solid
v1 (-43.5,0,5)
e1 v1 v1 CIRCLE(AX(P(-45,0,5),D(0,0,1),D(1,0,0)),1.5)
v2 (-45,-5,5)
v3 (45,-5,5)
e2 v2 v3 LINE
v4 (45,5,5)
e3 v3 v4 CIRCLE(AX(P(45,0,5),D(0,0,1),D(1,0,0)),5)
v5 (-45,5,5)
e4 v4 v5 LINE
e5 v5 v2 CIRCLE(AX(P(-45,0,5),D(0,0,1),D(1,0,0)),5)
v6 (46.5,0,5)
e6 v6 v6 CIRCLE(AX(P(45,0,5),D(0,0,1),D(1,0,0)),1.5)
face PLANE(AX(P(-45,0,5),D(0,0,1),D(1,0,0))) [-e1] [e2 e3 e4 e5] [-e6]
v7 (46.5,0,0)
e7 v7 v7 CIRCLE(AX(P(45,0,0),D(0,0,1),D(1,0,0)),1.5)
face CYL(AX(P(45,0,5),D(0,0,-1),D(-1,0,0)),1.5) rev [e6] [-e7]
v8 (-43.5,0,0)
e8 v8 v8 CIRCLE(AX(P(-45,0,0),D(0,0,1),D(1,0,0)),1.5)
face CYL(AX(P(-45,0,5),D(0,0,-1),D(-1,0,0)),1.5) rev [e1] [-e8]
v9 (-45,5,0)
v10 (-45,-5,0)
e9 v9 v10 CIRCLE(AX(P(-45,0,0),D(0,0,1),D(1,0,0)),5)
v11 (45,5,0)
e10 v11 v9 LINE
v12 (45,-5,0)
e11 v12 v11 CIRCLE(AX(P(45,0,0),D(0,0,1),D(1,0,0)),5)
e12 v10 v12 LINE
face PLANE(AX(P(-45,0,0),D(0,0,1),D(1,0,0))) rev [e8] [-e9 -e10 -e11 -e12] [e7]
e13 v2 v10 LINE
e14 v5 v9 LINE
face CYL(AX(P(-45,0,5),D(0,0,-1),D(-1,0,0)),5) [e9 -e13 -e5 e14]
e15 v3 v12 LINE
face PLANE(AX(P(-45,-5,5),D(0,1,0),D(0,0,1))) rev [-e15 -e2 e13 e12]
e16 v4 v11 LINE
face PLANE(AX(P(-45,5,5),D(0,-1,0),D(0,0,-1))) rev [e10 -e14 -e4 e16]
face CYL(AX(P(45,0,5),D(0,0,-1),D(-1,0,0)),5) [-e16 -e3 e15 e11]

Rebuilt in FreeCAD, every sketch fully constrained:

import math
import FreeCAD as App
import Part
import Sketcher

V = App.Vector
Q = App.Units.Quantity

doc = App.newDocument("Part")
body = doc.addObject("PartDesign::Body", "Body")

# Sketch on XY plane
sketch1 = body.newObject("Sketcher::SketchObject", "Sketch")
sketch1.AttachmentSupport = (doc.getObject("XY_Plane"), [""])
sketch1.MapMode = "FlatFace"
sketch1.addGeometry([
    Part.LineSegment(V(45, 5, 0), V(-45, 5, 0)),  # 0
    Part.ArcOfCircle(Part.Circle(V(-45, 0, 0), V(0, 0, 1), 5), math.radians(90), math.radians(270)),  # 1
    Part.LineSegment(V(-45, -5, 0), V(45, -5, 0)),  # 2
    Part.ArcOfCircle(Part.Circle(V(45, 0, 0), V(0, 0, 1), 5), math.radians(-90), math.radians(90)),  # 3
    Part.Circle(V(45, 0, 0), V(0, 0, 1), 1.5),  # 4
    Part.Circle(V(-45, 0, 0), V(0, 0, 1), 1.5),  # 5
], False)
sketch1.addConstraint([
    Sketcher.Constraint("Tangent", 0, 2, 1, 1),
    Sketcher.Constraint("Tangent", 1, 2, 2, 1),
    Sketcher.Constraint("Tangent", 2, 2, 3, 1),
    Sketcher.Constraint("Tangent", 3, 2, 0, 1),
    Sketcher.Constraint("Horizontal", 0),
    Sketcher.Constraint("Horizontal", 2),
    Sketcher.Constraint("Coincident", 4, 3, 3, 3),
    Sketcher.Constraint("Coincident", 5, 3, 1, 3),
    Sketcher.Constraint("Equal", 4, 5),
    Sketcher.Constraint("Symmetric", 1, 3, 3, 3, -1, 1),
    Sketcher.Constraint("Diameter", 4, Q("3 mm")),
    Sketcher.Constraint("Radius", 1, Q("5 mm")),
    Sketcher.Constraint("DistanceX", 0, 2, 0, 1, Q("90 mm")),
])
pad1 = body.newObject("PartDesign::Pad", "Pad")
pad1.Profile = sketch1
pad1.Length = 5

doc.recompute()
